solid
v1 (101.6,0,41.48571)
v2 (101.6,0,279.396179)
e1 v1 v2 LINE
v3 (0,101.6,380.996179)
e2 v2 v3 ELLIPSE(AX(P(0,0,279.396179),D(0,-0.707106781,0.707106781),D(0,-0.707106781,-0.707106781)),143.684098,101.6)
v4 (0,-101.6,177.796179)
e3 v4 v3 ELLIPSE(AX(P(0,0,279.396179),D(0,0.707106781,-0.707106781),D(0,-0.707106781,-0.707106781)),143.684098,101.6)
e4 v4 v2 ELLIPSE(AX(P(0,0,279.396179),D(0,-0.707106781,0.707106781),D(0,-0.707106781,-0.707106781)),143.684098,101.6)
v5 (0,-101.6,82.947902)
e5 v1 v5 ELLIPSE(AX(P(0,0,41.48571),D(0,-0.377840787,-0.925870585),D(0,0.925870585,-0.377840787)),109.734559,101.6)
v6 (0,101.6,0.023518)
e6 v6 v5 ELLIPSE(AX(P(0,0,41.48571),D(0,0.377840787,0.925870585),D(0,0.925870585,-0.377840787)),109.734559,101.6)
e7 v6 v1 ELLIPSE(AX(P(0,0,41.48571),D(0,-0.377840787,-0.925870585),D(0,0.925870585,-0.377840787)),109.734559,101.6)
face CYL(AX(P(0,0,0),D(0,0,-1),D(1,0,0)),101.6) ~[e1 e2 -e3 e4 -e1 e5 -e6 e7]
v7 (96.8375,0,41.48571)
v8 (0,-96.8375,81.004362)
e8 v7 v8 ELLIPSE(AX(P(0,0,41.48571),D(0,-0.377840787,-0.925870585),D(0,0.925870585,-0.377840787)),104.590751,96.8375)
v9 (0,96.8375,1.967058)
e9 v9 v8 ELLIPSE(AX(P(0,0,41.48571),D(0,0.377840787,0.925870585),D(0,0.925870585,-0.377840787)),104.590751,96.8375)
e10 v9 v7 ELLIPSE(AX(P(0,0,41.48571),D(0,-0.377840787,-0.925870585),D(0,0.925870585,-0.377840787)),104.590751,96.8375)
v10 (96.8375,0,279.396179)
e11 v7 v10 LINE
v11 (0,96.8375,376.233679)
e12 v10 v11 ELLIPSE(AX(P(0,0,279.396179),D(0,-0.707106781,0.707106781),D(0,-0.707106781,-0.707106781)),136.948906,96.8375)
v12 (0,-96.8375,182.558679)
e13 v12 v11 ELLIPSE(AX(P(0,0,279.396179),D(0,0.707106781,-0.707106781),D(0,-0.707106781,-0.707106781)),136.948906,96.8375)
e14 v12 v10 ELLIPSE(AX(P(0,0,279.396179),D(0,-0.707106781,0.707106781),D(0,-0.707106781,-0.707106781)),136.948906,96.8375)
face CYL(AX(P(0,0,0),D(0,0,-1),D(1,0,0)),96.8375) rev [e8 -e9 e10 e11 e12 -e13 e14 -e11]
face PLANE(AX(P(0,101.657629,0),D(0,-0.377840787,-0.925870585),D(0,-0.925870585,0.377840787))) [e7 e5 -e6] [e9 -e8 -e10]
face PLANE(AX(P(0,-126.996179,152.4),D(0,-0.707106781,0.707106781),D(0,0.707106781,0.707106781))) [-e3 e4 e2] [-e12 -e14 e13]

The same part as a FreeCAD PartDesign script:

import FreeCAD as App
import Part
import Sketcher
Q = App.Units.Quantity


def add_polygon(sketch, points):
    """Adds a closed chain of lines whose ends are joined by coincident constraints."""
    first, n = sketch.GeometryCount, len(points)
    for a, b in zip(points, points[1:] + points[:1]):
        sketch.addGeometry(Part.LineSegment(App.Vector(*a, 0), App.Vector(*b, 0)), False)
    for i in range(n):
        sketch.addConstraint(Sketcher.Constraint("Coincident", first + i, 2, first + (i + 1) % n, 1))

doc = App.newDocument("Part")
body = doc.addObject("PartDesign::Body", "Body")

# Sketch on XY plane
sketch1 = doc.addObject("Sketcher::SketchObject", "Sketch")
body.addObject(sketch1)
sketch1.AttachmentSupport = (doc.XY_Plane, [""])
sketch1.MapMode = "FlatFace"
sketch1.addGeometry(Part.Circle(App.Vector(0, 0, 0), App.Vector(0, 0, 1), 101.6), False)
sketch1.addGeometry(Part.Circle(App.Vector(0, 0, 0), App.Vector(0, 0, 1), 96.8375), False)
sketch1.addConstraint(Sketcher.Constraint("Coincident", 0, 3, -1, 1))
sketch1.addConstraint(Sketcher.Constraint("Coincident", 1, 3, -1, 1))
sketch1.addConstraint(Sketcher.Constraint("Diameter", 0, Q("8 in")))
sketch1.addConstraint(Sketcher.Constraint("Diameter", 1, Q("7.625 in")))
pad1 = doc.addObject("PartDesign::Pad", "Pad")
body.addObject(pad1)
pad1.Profile = sketch1
pad1.Length = Q("15 in")

# Sketch on YZ plane
sketch2 = doc.addObject("Sketcher::SketchObject", "Sketch001")
body.addObject(sketch2)
sketch2.AttachmentSupport = (doc.YZ_Plane, [""])
sketch2.MapMode = "FlatFace"
add_polygon(sketch2, [(-126.996179, 152.4), (101.603821, 381), (-126.996179, 381)])  # lines 0-2
add_polygon(sketch2, [(101.657629, 0), (-126.942371, 93.289932), (-126.942371, 0)])  # lines 3-5
sketch2.addConstraint(Sketcher.Constraint("Horizontal", 1))
sketch2.addConstraint(Sketcher.Constraint("Vertical", 2))
sketch2.addConstraint(Sketcher.Constraint("Vertical", 4))
sketch2.addConstraint(Sketcher.Constraint("Horizontal", 5))
sketch2.addConstraint(Sketcher.Constraint("PointOnObject", 4, 2, -1))
sketch2.addConstraint(Sketcher.Constraint("Equal", 1, 5))
sketch2.addConstraint(Sketcher.Constraint("Equal", 5, 2))
sketch2.addConstraint(Sketcher.Constraint("DistanceX", 1, 2, 1, 1, Q("9 in")))
sketch2.addConstraint(Sketcher.Constraint("DistanceY", -1, 1, 0, 2, Q("15 in")))
sketch2.addConstraint(Sketcher.Constraint("Angle", 3, Q("157.8 deg")))
sketch2.addConstraint(Sketcher.Constraint("DistanceX", -1, 1, 0, 2, Q("101.603821 mm")))
sketch2.addConstraint(Sketcher.Constraint("DistanceX", 3, 2, -1, 1, Q("126.942371 mm")))
pocket1 = doc.addObject("PartDesign::Pocket", "Pocket")
body.addObject(pocket1)
pocket1.Profile = sketch2
pocket1.Type = "ThroughAll"
pocket1.Midplane = True

doc.recompute()
